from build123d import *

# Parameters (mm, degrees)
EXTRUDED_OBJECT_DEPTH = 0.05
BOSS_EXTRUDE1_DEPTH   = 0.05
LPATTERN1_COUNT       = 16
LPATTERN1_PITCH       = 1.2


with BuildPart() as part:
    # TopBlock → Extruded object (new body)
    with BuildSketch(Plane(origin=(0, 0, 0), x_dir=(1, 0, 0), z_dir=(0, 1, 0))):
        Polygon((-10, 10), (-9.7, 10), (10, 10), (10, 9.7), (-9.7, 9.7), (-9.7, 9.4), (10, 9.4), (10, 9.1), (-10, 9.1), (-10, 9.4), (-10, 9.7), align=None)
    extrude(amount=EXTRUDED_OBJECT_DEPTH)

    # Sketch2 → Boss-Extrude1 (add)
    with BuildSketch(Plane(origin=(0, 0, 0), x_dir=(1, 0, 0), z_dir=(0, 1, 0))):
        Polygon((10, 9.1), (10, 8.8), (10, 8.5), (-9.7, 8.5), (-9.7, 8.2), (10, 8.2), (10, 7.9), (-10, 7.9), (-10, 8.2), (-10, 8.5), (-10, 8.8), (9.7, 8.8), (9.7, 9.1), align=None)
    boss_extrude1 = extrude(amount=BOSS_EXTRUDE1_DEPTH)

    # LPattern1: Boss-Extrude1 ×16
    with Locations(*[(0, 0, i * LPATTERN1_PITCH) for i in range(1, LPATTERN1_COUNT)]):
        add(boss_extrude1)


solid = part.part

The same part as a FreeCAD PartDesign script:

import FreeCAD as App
import Part
import Sketcher


def add_polygon(sketch, points):
    """Adds a closed chain of lines whose ends are joined by coincident constraints."""
    first, n = sketch.GeometryCount, len(points)
    for a, b in zip(points, points[1:] + points[:1]):
        sketch.addGeometry(Part.LineSegment(App.Vector(*a, 0), App.Vector(*b, 0)), False)
    for i in range(n):
        sketch.addConstraint(Sketcher.Constraint("Coincident", first + i, 2, first + (i + 1) % n, 1))

doc = App.newDocument("Part")
params = doc.addObject("Spreadsheet::Sheet", "Params")
for row, (alias, value) in enumerate([
    ("sketch1_width", "20 mm"),
    ("sketch1_width2", "19.7 mm"),
    ("sketch1_height", "0.9 mm"),
    ("pad1_length", "0.05 mm"),
    ("sketch2_width", "20 mm"),
    ("sketch2_width2", "0.3 mm"),
    ("sketch2_height", "0.6 mm"),
    ("pad2_length", "0.05 mm"),
    ("linearpattern_pitch", "1.2 mm"),
], start=1):
    params.set(f"A{row}", alias)
    params.set(f"B{row}", "=" + value)
    params.setAlias(f"B{row}", alias)

body = doc.addObject("PartDesign::Body", "Body")

sketch1 = body.newObject("Sketcher::SketchObject", "Sketch")
sketch1.AttachmentSupport = (doc.getObject("XZ_Plane"), [""])
sketch1.MapMode = "FlatFace"
add_polygon(sketch1, [(10, -10), (-10, -10), (-10, -9.1), (10, -9.1), (10, -9.4), (-9.7, -9.4), (-9.7, -9.7), (10, -9.7)])
sketch1.addConstraint([
    Sketcher.Constraint("Horizontal", 0),
    Sketcher.Constraint("Vertical", 1),
    Sketcher.Constraint("Horizontal", 2),
    Sketcher.Constraint("Vertical", 3),
    Sketcher.Constraint("Horizontal", 4),
    Sketcher.Constraint("Vertical", 5),
    Sketcher.Constraint("Horizontal", 6),
    Sketcher.Constraint("Vertical", 7),
    Sketcher.Constraint("Vertical", 3, 2, 6, 2),
    Sketcher.Constraint("Equal", 3, 5),
    Sketcher.Constraint("Equal", 5, 7),
    Sketcher.Constraint("DistanceX", 0, 2, 0, 1, 20.0),
    Sketcher.Constraint("DistanceX", 4, 2, 4, 1, 19.7),
    Sketcher.Constraint("DistanceY", 1, 1, 1, 2, 0.9),
    Sketcher.Constraint("DistanceX", 0, 2, -1, 1, 10.0),
    Sketcher.Constraint("DistanceY", 0, 2, -1, 1, 10.0),
])
sketch1.setExpression("Constraints[19]", "Params.sketch1_width")
sketch1.setExpression("Constraints[20]", "Params.sketch1_width2")
sketch1.setExpression("Constraints[21]", "Params.sketch1_height")
pad1 = body.newObject("PartDesign::Pad", "Pad")
pad1.Profile = sketch1
pad1.setExpression("Length", "Params.pad1_length")
pad1.Reversed = True

sketch2 = body.newObject("Sketcher::SketchObject", "Sketch001")
sketch2.AttachmentSupport = (doc.getObject("XZ_Plane"), [""])
sketch2.MapMode = "FlatFace"
add_polygon(sketch2, [(10, -8.5), (10, -9.1), (9.7, -9.1), (9.7, -8.8), (-10, -8.8), (-10, -7.9), (10, -7.9), (10, -8.2), (-9.7, -8.2), (-9.7, -8.5)])
sketch2.addConstraint([
    Sketcher.Constraint("Vertical", 0),
    Sketcher.Constraint("Horizontal", 1),
    Sketcher.Constraint("Vertical", 2),
    Sketcher.Constraint("Horizontal", 3),
    Sketcher.Constraint("Vertical", 4),
    Sketcher.Constraint("Horizontal", 5),
    Sketcher.Constraint("Vertical", 6),
    Sketcher.Constraint("Horizontal", 7),
    Sketcher.Constraint("Vertical", 8),
    Sketcher.Constraint("Horizontal", 9),
    Sketcher.Constraint("Vertical", 0, 2, 5, 2),
    Sketcher.Constraint("Equal", 3, 7),
    Sketcher.Constraint("Equal", 1, 2),
    Sketcher.Constraint("Equal", 2, 6),
    Sketcher.Constraint("Equal", 6, 8),
    Sketcher.Constraint("DistanceX", 5, 1, 5, 2, 20.0),
    Sketcher.Constraint("DistanceX", 1, 2, 1, 1, 0.3),
    Sketcher.Constraint("DistanceY", 0, 2, 0, 1, 0.6),
    Sketcher.Constraint("DistanceX", -1, 1, 0, 2, 10.0),
    Sketcher.Constraint("DistanceY", 0, 2, -1, 1, 9.1),
])
sketch2.setExpression("Constraints[25]", "Params.sketch2_width")
sketch2.setExpression("Constraints[26]", "Params.sketch2_width2")
sketch2.setExpression("Constraints[27]", "Params.sketch2_height")
pad2 = body.newObject("PartDesign::Pad", "Pad001")
pad2.Profile = sketch2
pad2.setExpression("Length", "Params.pad2_length")
pad2.Reversed = True
doc.recompute()

linearpattern = body.newObject("PartDesign::LinearPattern", "LinearPattern")
linearpattern.Originals = [pad2]
linearpattern.Direction = (doc.getObject("Z_Axis"), [""])
linearpattern.Mode = "offset"
linearpattern.setExpression("Offset", "Params.linearpattern_pitch")
linearpattern.Occurrences = 16
body.Tip = linearpattern

doc.recompute()
